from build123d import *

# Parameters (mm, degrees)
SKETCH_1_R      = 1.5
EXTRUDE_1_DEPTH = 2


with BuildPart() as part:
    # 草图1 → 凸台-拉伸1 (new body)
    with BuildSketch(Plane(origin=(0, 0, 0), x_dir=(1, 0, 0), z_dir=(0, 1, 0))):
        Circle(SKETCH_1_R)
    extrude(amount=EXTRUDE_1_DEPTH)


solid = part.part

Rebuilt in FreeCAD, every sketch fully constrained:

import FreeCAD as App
import Part
import Sketcher
from FreeCAD import Vector
Q = App.Units.Quantity

doc = App.newDocument("Part")
params = doc.addObject("Spreadsheet::Sheet", "Params")
for row, (alias, value) in enumerate([
    ("sketch1_diameter", "3 mm"),
    ("pad1_length", "2 mm"),
], start=1):
    params.set(f"A{row}", alias)
    params.set(f"B{row}", "=" + value)
    params.setAlias(f"B{row}", alias)

body = doc.addObject("PartDesign::Body", "Body")

# Sketch on XZ plane
sketch1 = body.newObject("Sketcher::SketchObject", "Sketch")
sketch1.AttachmentSupport = (doc.getObject("XZ_Plane"), [""])
sketch1.MapMode = "FlatFace"
sketch1.addGeometry(Part.Circle(Vector(0, 0, 0), Vector(0, 0, 1), 1.5), False)
sketch1.addConstraint(Sketcher.Constraint("Coincident", 0, 3, -1, 1))
sketch1.addConstraint(Sketcher.Constraint("Diameter", 0, Q("3 mm")))
sketch1.setExpression("Constraints[1]", "Params.sketch1_diameter")
pad1 = body.newObject("PartDesign::Pad", "Pad")
pad1.Profile = sketch1
pad1.setExpression("Length", "Params.pad1_length")
pad1.Reversed = True

doc.recompute()
